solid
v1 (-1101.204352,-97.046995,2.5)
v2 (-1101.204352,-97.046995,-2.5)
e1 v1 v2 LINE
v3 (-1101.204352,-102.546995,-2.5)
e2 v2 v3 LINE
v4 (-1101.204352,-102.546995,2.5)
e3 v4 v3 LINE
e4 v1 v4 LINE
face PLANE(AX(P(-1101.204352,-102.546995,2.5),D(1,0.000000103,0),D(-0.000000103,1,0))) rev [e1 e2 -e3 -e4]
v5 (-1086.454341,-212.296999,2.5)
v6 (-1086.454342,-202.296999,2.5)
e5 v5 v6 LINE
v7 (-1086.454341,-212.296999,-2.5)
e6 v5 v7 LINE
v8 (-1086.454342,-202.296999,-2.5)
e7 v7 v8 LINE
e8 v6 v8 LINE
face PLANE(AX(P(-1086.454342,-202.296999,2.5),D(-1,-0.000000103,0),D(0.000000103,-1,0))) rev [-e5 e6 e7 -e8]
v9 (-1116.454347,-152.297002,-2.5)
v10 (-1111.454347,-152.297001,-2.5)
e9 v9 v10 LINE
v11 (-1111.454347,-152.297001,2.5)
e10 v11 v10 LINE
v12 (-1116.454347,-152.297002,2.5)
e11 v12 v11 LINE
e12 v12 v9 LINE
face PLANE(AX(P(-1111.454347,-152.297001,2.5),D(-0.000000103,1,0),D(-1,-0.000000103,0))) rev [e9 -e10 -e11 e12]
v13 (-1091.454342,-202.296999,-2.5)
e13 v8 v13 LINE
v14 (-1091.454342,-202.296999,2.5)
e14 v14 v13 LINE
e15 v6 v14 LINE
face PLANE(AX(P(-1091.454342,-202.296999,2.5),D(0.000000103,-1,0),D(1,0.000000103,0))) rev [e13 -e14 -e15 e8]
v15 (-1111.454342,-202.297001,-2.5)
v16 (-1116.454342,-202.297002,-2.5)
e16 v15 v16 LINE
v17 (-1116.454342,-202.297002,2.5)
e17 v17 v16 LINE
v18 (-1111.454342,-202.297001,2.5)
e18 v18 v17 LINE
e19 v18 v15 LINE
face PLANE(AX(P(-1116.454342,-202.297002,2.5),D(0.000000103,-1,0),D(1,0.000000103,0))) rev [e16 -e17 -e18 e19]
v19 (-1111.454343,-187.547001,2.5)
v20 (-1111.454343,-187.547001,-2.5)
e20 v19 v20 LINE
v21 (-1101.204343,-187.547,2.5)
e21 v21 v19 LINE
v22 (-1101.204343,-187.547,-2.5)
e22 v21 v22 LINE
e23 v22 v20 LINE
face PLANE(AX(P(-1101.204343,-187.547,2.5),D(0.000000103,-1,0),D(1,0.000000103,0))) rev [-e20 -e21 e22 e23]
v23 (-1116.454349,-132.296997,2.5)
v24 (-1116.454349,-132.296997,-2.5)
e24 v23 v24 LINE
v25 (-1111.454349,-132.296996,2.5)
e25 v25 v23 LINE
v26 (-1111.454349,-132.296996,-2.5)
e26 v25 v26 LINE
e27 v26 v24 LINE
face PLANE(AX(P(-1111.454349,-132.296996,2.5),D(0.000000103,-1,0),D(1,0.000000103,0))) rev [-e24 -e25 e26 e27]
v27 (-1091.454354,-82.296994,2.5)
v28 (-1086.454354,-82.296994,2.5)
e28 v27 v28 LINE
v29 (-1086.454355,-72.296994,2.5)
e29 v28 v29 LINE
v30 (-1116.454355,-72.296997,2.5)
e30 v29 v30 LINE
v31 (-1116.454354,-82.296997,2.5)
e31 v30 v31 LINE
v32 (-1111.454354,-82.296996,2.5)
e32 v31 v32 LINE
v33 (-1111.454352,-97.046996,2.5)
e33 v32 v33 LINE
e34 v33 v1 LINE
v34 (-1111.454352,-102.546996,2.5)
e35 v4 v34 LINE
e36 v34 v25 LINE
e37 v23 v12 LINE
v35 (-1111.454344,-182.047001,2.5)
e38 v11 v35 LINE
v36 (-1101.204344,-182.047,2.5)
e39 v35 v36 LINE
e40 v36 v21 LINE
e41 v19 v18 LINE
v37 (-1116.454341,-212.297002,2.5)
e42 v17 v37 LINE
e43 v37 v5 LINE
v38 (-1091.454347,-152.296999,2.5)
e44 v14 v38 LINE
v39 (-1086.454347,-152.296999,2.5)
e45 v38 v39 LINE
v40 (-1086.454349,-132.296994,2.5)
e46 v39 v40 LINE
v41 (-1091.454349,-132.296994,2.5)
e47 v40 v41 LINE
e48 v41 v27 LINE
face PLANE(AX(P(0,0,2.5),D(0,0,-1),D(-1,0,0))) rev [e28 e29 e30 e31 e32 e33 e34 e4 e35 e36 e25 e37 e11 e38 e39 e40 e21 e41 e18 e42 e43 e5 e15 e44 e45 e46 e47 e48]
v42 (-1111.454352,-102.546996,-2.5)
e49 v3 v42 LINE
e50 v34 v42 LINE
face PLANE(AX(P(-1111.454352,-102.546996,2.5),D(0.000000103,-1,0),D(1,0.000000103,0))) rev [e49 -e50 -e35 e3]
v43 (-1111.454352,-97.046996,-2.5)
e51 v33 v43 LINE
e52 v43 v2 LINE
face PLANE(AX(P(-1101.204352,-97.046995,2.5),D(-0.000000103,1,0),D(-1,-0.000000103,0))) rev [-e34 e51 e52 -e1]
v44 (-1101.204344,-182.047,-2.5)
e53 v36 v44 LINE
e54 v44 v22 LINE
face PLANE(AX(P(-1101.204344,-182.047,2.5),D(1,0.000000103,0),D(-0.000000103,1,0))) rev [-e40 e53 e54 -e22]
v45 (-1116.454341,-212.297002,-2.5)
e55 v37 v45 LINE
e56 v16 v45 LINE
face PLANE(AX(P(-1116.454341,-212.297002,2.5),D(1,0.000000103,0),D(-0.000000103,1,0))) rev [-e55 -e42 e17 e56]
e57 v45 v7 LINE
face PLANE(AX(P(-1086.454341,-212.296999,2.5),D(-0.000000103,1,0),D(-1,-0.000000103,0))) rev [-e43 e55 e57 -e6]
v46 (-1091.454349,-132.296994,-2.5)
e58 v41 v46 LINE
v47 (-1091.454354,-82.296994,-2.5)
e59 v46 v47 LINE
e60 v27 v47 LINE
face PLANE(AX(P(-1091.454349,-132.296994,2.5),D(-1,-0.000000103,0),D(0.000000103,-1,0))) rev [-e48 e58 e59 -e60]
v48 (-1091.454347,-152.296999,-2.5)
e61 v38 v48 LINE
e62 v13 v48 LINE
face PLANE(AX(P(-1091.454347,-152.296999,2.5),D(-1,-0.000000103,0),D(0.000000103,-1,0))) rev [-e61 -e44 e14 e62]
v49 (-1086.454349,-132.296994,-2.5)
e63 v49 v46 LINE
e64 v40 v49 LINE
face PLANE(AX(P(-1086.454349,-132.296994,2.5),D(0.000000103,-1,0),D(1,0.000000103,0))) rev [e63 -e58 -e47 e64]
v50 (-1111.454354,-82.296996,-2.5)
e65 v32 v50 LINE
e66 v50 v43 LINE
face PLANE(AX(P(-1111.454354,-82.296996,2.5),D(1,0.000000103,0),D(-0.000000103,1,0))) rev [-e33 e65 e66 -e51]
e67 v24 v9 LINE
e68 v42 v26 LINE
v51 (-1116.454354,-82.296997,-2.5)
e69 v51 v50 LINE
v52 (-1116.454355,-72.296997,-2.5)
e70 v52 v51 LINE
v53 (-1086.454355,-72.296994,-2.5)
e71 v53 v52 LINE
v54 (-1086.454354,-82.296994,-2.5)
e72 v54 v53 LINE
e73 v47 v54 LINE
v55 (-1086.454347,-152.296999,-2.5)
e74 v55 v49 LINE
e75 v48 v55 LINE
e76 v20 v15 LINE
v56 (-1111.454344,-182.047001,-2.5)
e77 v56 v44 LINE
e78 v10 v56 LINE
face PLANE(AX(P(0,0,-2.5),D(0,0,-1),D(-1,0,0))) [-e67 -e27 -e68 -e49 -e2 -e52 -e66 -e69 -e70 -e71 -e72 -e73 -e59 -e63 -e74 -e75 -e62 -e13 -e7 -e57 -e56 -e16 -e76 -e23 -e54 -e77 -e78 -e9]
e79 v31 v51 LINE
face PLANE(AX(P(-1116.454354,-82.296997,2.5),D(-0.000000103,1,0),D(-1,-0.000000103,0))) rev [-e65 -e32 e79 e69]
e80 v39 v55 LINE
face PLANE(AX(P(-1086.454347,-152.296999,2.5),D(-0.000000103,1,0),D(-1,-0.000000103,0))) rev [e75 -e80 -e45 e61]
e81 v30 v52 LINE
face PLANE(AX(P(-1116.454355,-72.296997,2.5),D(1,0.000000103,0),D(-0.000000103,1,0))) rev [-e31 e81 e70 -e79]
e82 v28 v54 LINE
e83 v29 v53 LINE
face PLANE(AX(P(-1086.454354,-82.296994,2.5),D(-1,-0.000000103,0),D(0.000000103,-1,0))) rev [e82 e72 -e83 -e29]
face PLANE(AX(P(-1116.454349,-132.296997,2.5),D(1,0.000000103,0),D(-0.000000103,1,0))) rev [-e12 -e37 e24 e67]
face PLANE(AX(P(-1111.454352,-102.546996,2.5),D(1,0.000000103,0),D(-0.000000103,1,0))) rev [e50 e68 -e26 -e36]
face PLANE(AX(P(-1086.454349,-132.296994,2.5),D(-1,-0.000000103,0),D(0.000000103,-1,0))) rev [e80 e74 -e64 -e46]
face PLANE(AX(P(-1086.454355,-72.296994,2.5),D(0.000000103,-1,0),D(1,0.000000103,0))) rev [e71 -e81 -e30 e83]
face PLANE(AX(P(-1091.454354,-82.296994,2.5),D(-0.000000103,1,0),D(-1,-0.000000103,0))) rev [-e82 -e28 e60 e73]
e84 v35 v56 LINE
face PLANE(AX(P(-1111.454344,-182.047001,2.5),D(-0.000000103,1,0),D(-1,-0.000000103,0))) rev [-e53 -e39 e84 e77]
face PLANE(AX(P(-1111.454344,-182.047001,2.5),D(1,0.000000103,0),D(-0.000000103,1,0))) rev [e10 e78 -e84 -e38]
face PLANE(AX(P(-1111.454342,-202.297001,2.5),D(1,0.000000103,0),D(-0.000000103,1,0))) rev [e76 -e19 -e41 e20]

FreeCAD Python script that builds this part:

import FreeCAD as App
import Part
import Sketcher

V = App.Vector

doc = App.newDocument("Part")
params = doc.addObject("Spreadsheet::Sheet", "Params")
for row, (alias, value) in enumerate([
    ("sketch1_width", "5 mm"),
    ("sketch1_height", "10 mm"),
    ("sketch1_length", "30 mm"),
    ("sketch1_length2", "50 mm"),
    ("sketch1_height2", "5.5 mm"),
    ("pad1_length", "5 mm"),
], start=1):
    params.set(f"A{row}", alias)
    params.set(f"B{row}", "=" + value)
    params.setAlias(f"B{row}", alias)

body = doc.addObject("PartDesign::Body", "Body")

# Sketch on XY plane
sketch1 = body.newObject("Sketcher::SketchObject", "Sketch")
sketch1.AttachmentSupport = (doc.getObject("XY_Plane"), [""])
sketch1.MapMode = "FlatFace"
sketch1.addGeometry([
    Part.LineSegment(V(-1116, -212, 0), V(-1086, -212, 0)),  # 0
    Part.LineSegment(V(-1086, -212, 0), V(-1086, -202, 0)),  # 1
    Part.LineSegment(V(-1086, -202, 0), V(-1091, -202, 0)),  # 2
    Part.LineSegment(V(-1091, -202, 0), V(-1091, -152, 0)),  # 3
    Part.LineSegment(V(-1091, -152, 0), V(-1086, -152, 0)),  # 4
    Part.LineSegment(V(-1086, -152, 0), V(-1086, -132, 0)),  # 5
    Part.LineSegment(V(-1086, -132, 0), V(-1091, -132, 0)),  # 6
    Part.LineSegment(V(-1091, -132, 0), V(-1091, -82, 0)),  # 7
    Part.LineSegment(V(-1091, -82, 0), V(-1086, -82, 0)),  # 8
    Part.LineSegment(V(-1086, -82, 0), V(-1086, -72, 0)),  # 9
    Part.LineSegment(V(-1086, -72, 0), V(-1116, -72, 0)),  # 10
    Part.LineSegment(V(-1116, -72, 0), V(-1116, -82, 0)),  # 11
    Part.LineSegment(V(-1116, -82, 0), V(-1111, -82, 0)),  # 12
    Part.LineSegment(V(-1111, -82, 0), V(-1111, -97, 0)),  # 13
    Part.LineSegment(V(-1111, -97, 0), V(-1101, -97, 0)),  # 14
    Part.LineSegment(V(-1101, -97, 0), V(-1101, -103, 0)),  # 15
    Part.LineSegment(V(-1101, -103, 0), V(-1111, -103, 0)),  # 16
    Part.LineSegment(V(-1111, -103, 0), V(-1111, -132, 0)),  # 17
    Part.LineSegment(V(-1111, -132, 0), V(-1116, -132, 0)),  # 18
    Part.LineSegment(V(-1116, -132, 0), V(-1116, -152, 0)),  # 19
    Part.LineSegment(V(-1116, -152, 0), V(-1111, -152, 0)),  # 20
    Part.LineSegment(V(-1111, -152, 0), V(-1111, -182, 0)),  # 21
    Part.LineSegment(V(-1111, -182, 0), V(-1101, -182, 0)),  # 22
    Part.LineSegment(V(-1101, -182, 0), V(-1101, -188, 0)),  # 23
    Part.LineSegment(V(-1101, -188, 0), V(-1111, -188, 0)),  # 24
    Part.LineSegment(V(-1111, -188, 0), V(-1111, -202, 0)),  # 25
    Part.LineSegment(V(-1111, -202, 0), V(-1116, -202, 0)),  # 26
    Part.LineSegment(V(-1116, -202, 0), V(-1116, -212, 0)),  # 27
], False)
sketch1.addConstraint([
    Sketcher.Constraint("Coincident", 0, 2, 1, 1),
    Sketcher.Constraint("Coincident", 1, 2, 2, 1),
    Sketcher.Constraint("Coincident", 2, 2, 3, 1),
    Sketcher.Constraint("Coincident", 3, 2, 4, 1),
    Sketcher.Constraint("Coincident", 4, 2, 5, 1),
    Sketcher.Constraint("Coincident", 5, 2, 6, 1),
    Sketcher.Constraint("Coincident", 6, 2, 7, 1),
    Sketcher.Constraint("Coincident", 7, 2, 8, 1),
    Sketcher.Constraint("Coincident", 8, 2, 9, 1),
    Sketcher.Constraint("Coincident", 9, 2, 10, 1),
    Sketcher.Constraint("Coincident", 10, 2, 11, 1),
    Sketcher.Constraint("Coincident", 11, 2, 12, 1),
    Sketcher.Constraint("Coincident", 12, 2, 13, 1),
    Sketcher.Constraint("Coincident", 13, 2, 14, 1),
    Sketcher.Constraint("Coincident", 14, 2, 15, 1),
    Sketcher.Constraint("Coincident", 15, 2, 16, 1),
    Sketcher.Constraint("Coincident", 16, 2, 17, 1),
    Sketcher.Constraint("Coincident", 17, 2, 18, 1),
    Sketcher.Constraint("Coincident", 18, 2, 19, 1),
    Sketcher.Constraint("Coincident", 19, 2, 20, 1),
    Sketcher.Constraint("Coincident", 20, 2, 21, 1),
    Sketcher.Constraint("Coincident", 21, 2, 22, 1),
    Sketcher.Constraint("Coincident", 22, 2, 23, 1),
    Sketcher.Constraint("Coincident", 23, 2, 24, 1),
    Sketcher.Constraint("Coincident", 24, 2, 25, 1),
    Sketcher.Constraint("Coincident", 25, 2, 26, 1),
    Sketcher.Constraint("Coincident", 26, 2, 27, 1),
    Sketcher.Constraint("Coincident", 27, 2, 0, 1),
    Sketcher.Constraint("Vertical", 1),
    Sketcher.Constraint("Horizontal", 2),
    Sketcher.Constraint("Horizontal", 4),
    Sketcher.Constraint("Horizontal", 6),
    Sketcher.Constraint("Horizontal", 8),
    Sketcher.Constraint("Vertical", 9),
    Sketcher.Constraint("Vertical", 11),
    Sketcher.Constraint("Horizontal", 12),
    Sketcher.Constraint("Vertical", 13),
    Sketcher.Constraint("Horizontal", 14),
    Sketcher.Constraint("Vertical", 15),
    Sketcher.Constraint("Horizontal", 16),
    Sketcher.Constraint("Horizontal", 18),
    Sketcher.Constraint("Horizontal", 20),
    Sketcher.Constraint("Horizontal", 22),
    Sketcher.Constraint("Vertical", 23),
    Sketcher.Constraint("Horizontal", 24),
    Sketcher.Constraint("Vertical", 25),
    Sketcher.Constraint("Horizontal", 26),
    Sketcher.Constraint("Vertical", 27),
    Sketcher.Constraint("Perpendicular", 0, 3),
    Sketcher.Constraint("Parallel", 3, 5),
    Sketcher.Constraint("Parallel", 5, 7),
    Sketcher.Constraint("Perpendicular", 7, 10),
    Sketcher.Constraint("Perpendicular", 10, 17),
    Sketcher.Constraint("Parallel", 17, 19),
    Sketcher.Constraint("Parallel", 19, 21),
    Sketcher.Constraint("Vertical", 13, 2, 16, 2),
    Sketcher.Constraint("Vertical", 21, 2, 24, 2),
    Sketcher.Constraint("Equal", 2, 4),
    Sketcher.Constraint("Equal", 4, 6),
    Sketcher.Constraint("Equal", 6, 8),
    Sketcher.Constraint("Equal", 8, 12),
    Sketcher.Constraint("Equal", 12, 18),
    Sketcher.Constraint("Equal", 18, 20),
    Sketcher.Constraint("Equal", 16, 22),
    Sketcher.Constraint("Equal", 20, 26),
    Sketcher.Constraint("Equal", 1, 9),
    Sketcher.Constraint("Equal", 9, 11),
    Sketcher.Constraint("Equal", 15, 23),
    Sketcher.Constraint("Equal", 13, 25),
    Sketcher.Constraint("Equal", 11, 27),
    Sketcher.Constraint("Equal", 3, 7),
    Sketcher.Constraint("Equal", 0, 10),
    Sketcher.Constraint("Equal", 5, 19),
    Sketcher.Constraint("Equal", 17, 21),
    Sketcher.Constraint("DistanceX", 2, 2, 2, 1, 5.0),
    Sketcher.Constraint("DistanceY", 1, 1, 1, 2, 10.0),
    Sketcher.Constraint("Distance", 0, 30.0),
    Sketcher.Constraint("Distance", 3, 50.0),
    Sketcher.Constraint("DistanceY", 15, 2, 15, 1, 5.5),
    Sketcher.Constraint("DistanceX", 14, 1, 14, 2, 10.25),
    Sketcher.Constraint("DistanceY", 13, 2, 13, 1, 14.75),
    Sketcher.Constraint("DistanceY", 0, 2, -1, 1, 212.296999),
    Sketcher.Constraint("DistanceX", 0, 2, -1, 1, 1086.454341),
    Sketcher.Constraint("Distance", 5, 20.000005),
])
sketch1.setExpression("Constraints[74]", "Params.sketch1_width")
sketch1.setExpression("Constraints[75]", "Params.sketch1_height")
sketch1.setExpression("Constraints[76]", "Params.sketch1_length")
sketch1.setExpression("Constraints[77]", "Params.sketch1_length2")
sketch1.setExpression("Constraints[78]", "Params.sketch1_height2")
pad1 = body.newObject("PartDesign::Pad", "Pad")
pad1.Profile = sketch1
pad1.setExpression("Length", "Params.pad1_length")
pad1.Midplane = True

doc.recompute()
